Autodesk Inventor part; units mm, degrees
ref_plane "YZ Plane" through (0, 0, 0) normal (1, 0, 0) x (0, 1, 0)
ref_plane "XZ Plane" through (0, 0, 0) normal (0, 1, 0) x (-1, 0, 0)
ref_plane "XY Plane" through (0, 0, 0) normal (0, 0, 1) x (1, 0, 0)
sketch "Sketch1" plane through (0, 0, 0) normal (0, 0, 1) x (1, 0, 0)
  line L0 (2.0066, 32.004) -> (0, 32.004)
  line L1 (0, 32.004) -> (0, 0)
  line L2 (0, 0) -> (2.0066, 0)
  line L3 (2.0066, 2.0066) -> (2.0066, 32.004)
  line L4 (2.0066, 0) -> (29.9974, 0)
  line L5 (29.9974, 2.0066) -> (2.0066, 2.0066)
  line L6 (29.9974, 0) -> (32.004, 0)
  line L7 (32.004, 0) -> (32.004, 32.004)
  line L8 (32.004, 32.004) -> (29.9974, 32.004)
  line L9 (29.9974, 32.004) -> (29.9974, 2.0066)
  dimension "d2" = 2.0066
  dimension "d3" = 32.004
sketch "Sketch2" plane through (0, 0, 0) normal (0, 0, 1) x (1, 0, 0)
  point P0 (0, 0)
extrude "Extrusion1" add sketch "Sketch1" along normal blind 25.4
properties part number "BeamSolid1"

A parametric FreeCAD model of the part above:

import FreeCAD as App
import Part
import Sketcher
Q = App.Units.Quantity

doc = App.newDocument("Part")
params = doc.addObject("Spreadsheet::Sheet", "Params")
for row, (alias, value) in enumerate([
    ("sketch1_width", "1.26 in"),
    ("sketch1_width2", "0.079 in"),
    ("pad1_length", "1 in"),
], start=1):
    params.set(f"A{row}", alias)
    params.set(f"B{row}", "=" + value)
    params.setAlias(f"B{row}", alias)

body = doc.addObject("PartDesign::Body", "Body")

sketch1 = body.newObject("Sketcher::SketchObject", "Sketch")
sketch1.AttachmentSupport = (doc.getObject("XY_Plane"), [""])
sketch1.MapMode = "FlatFace"
sketch1.addGeometry([
    Part.LineSegment(App.Vector(2.0066, 2.0066, 0), App.Vector(2.0066, 32.004, 0)),
    Part.LineSegment(App.Vector(2.0066, 32.004, 0), App.Vector(0, 32.004, 0)),
    Part.LineSegment(App.Vector(0, 32.004, 0), App.Vector(0, 0, 0)),
    Part.LineSegment(App.Vector(0, 0, 0), App.Vector(32.004, 0, 0)),
    Part.LineSegment(App.Vector(32.004, 0, 0), App.Vector(32.004, 32.004, 0)),
    Part.LineSegment(App.Vector(32.004, 32.004, 0), App.Vector(29.9974, 32.004, 0)),
    Part.LineSegment(App.Vector(29.9974, 32.004, 0), App.Vector(29.9974, 2.0066, 0)),
    Part.LineSegment(App.Vector(29.9974, 2.0066, 0), App.Vector(2.0066, 2.0066, 0)),
], False)
sketch1.addConstraint([
    Sketcher.Constraint("Coincident", 0, 2, 1, 1),
    Sketcher.Constraint("Coincident", 1, 2, 2, 1),
    Sketcher.Constraint("Coincident", 2, 2, 3, 1),
    Sketcher.Constraint("Coincident", 3, 2, 4, 1),
    Sketcher.Constraint("Coincident", 4, 2, 5, 1),
    Sketcher.Constraint("Coincident", 5, 2, 6, 1),
    Sketcher.Constraint("Coincident", 6, 2, 7, 1),
    Sketcher.Constraint("Coincident", 7, 2, 0, 1),
    Sketcher.Constraint("Vertical", 0),
    Sketcher.Constraint("Horizontal", 1),
    Sketcher.Constraint("Vertical", 2),
    Sketcher.Constraint("Horizontal", 3),
    Sketcher.Constraint("Vertical", 4),
    Sketcher.Constraint("Horizontal", 5),
    Sketcher.Constraint("Vertical", 6),
    Sketcher.Constraint("Horizontal", 7),
    Sketcher.Constraint("Coincident", 2, 2, -1, 1),
    Sketcher.Constraint("Horizontal", 1, 2, 4, 2),
    Sketcher.Constraint("Equal", 1, 5),
    Sketcher.Constraint("Equal", 3, 2),
    Sketcher.Constraint("DistanceX", 3, 1, 3, 2, Q("1.26 in")),
    Sketcher.Constraint("DistanceX", 1, 2, 1, 1, Q("0.079 in")),
    Sketcher.Constraint("DistanceY", -1, 1, 6, 2, Q("0.079 in")),
])
sketch1.setExpression("Constraints[20]", "Params.sketch1_width")
sketch1.setExpression("Constraints[21]", "Params.sketch1_width2")
pad1 = body.newObject("PartDesign::Pad", "Pad")
pad1.Profile = sketch1
pad1.setExpression("Length", "Params.pad1_length")

doc.recompute()
